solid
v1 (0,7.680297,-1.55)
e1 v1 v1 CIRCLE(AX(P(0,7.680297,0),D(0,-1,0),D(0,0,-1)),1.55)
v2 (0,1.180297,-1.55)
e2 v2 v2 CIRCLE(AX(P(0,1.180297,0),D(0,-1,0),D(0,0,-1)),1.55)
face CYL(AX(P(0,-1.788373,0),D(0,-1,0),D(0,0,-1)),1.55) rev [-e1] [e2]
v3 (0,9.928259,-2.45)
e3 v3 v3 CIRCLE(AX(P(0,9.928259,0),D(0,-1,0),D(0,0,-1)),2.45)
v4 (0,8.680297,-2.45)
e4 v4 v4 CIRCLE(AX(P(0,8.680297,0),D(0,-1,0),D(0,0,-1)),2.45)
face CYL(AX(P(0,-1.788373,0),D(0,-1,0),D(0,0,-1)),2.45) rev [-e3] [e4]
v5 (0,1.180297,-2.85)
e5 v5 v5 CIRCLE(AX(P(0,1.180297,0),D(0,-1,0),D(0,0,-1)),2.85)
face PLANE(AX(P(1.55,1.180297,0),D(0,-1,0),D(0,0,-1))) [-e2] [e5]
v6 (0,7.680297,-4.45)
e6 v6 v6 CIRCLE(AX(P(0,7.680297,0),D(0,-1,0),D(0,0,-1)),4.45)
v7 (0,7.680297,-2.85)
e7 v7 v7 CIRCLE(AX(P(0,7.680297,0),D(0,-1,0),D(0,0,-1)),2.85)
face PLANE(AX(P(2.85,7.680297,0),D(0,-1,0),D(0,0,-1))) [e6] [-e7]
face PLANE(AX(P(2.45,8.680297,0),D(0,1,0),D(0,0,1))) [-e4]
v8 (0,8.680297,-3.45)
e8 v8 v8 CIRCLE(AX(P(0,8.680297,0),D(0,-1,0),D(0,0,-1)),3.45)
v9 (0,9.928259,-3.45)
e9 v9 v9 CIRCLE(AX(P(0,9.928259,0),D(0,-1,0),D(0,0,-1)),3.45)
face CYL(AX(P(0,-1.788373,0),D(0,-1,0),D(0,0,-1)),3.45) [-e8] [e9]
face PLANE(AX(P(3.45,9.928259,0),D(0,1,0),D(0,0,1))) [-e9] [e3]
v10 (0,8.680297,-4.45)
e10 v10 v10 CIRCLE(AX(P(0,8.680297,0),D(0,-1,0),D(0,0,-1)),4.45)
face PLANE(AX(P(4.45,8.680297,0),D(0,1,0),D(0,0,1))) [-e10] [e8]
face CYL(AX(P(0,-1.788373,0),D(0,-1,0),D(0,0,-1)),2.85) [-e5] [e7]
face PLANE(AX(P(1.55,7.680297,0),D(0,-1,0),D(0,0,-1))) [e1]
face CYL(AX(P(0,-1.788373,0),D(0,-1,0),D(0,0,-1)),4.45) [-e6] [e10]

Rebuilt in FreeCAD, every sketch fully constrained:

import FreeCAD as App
import Part
import Sketcher
from FreeCAD import Vector
Q = App.Units.Quantity

doc = App.newDocument("Part")
body = doc.addObject("PartDesign::Body", "Body")

sketch1 = doc.addObject("Sketcher::SketchObject", "Sketch")
body.addObject(sketch1)
sketch1.AttachmentSupport = (doc.XY_Plane, [""])
sketch1.MapMode = "FlatFace"
sketch1.addGeometry([
    Part.LineSegment(Vector(1.6, 7.7, 0), Vector(1.6, 1.2, 0)),
    Part.LineSegment(Vector(1.6, 1.2, 0), Vector(2.9, 1.2, 0)),
    Part.LineSegment(Vector(2.9, 1.2, 0), Vector(2.9, 7.7, 0)),
    Part.LineSegment(Vector(2.9, 7.7, 0), Vector(4.5, 7.7, 0)),
    Part.LineSegment(Vector(4.5, 7.7, 0), Vector(4.5, 8.7, 0)),
    Part.LineSegment(Vector(4.5, 8.7, 0), Vector(3.5, 8.7, 0)),
    Part.LineSegment(Vector(3.5, 8.7, 0), Vector(3.5, 9.9, 0)),
    Part.LineSegment(Vector(3.5, 9.9, 0), Vector(2.5, 9.9, 0)),
    Part.LineSegment(Vector(2.5, 9.9, 0), Vector(2.5, 8.7, 0)),
    Part.LineSegment(Vector(2.5, 8.7, 0), Vector(0, 8.7, 0)),
    Part.LineSegment(Vector(0, 8.7, 0), Vector(0, 7.7, 0)),
    Part.LineSegment(Vector(0, 7.7, 0), Vector(1.6, 7.7, 0)),
], False)
sketch1.addConstraint([
    Sketcher.Constraint("Coincident", 0, 2, 1, 1),
    Sketcher.Constraint("Coincident", 1, 2, 2, 1),
    Sketcher.Constraint("Coincident", 2, 2, 3, 1),
    Sketcher.Constraint("Coincident", 3, 2, 4, 1),
    Sketcher.Constraint("Coincident", 4, 2, 5, 1),
    Sketcher.Constraint("Coincident", 5, 2, 6, 1),
    Sketcher.Constraint("Coincident", 6, 2, 7, 1),
    Sketcher.Constraint("Coincident", 7, 2, 8, 1),
    Sketcher.Constraint("Coincident", 8, 2, 9, 1),
    Sketcher.Constraint("Coincident", 9, 2, 10, 1),
    Sketcher.Constraint("Coincident", 10, 2, 11, 1),
    Sketcher.Constraint("Coincident", 11, 2, 0, 1),
    Sketcher.Constraint("Vertical", 0),
    Sketcher.Constraint("Horizontal", 1),
    Sketcher.Constraint("Vertical", 2),
    Sketcher.Constraint("Horizontal", 3),
    Sketcher.Constraint("Vertical", 4),
    Sketcher.Constraint("Horizontal", 5),
    Sketcher.Constraint("Vertical", 6),
    Sketcher.Constraint("Horizontal", 7),
    Sketcher.Constraint("Vertical", 8),
    Sketcher.Constraint("Horizontal", 9),
    Sketcher.Constraint("Vertical", 10),
    Sketcher.Constraint("Horizontal", 11),
    Sketcher.Constraint("PointOnObject", 9, 2, -2),
    Sketcher.Constraint("Horizontal", 5, 2, 8, 2),
    Sketcher.Constraint("Horizontal", 3, 2, 10, 2),
    Sketcher.Constraint("Equal", 5, 7),
    Sketcher.Constraint("Equal", 7, 4),
    Sketcher.Constraint("DistanceX", 5, 2, 5, 1, Q("1 mm")),
    Sketcher.Constraint("DistanceX", 1, 1, 1, 2, Q("1.3 mm")),
    Sketcher.Constraint("DistanceX", 3, 1, 3, 2, Q("1.6 mm")),
    Sketcher.Constraint("DistanceY", 0, 2, 0, 1, Q("6.5 mm")),
    Sketcher.Constraint("DistanceX", 9, 2, 9, 1, Q("2.45 mm")),
    Sketcher.Constraint("DistanceY", 6, 1, 6, 2, Q("1.247963 mm")),
    Sketcher.Constraint("DistanceY", -1, 1, 6, 2, Q("9.928259 mm")),
])
revolution = doc.addObject("PartDesign::Revolution", "Revolution")
body.addObject(revolution)
revolution.Profile = sketch1
revolution.ReferenceAxis = (sketch1, ["V_Axis"])
revolution.Angle = 360

doc.recompute()
